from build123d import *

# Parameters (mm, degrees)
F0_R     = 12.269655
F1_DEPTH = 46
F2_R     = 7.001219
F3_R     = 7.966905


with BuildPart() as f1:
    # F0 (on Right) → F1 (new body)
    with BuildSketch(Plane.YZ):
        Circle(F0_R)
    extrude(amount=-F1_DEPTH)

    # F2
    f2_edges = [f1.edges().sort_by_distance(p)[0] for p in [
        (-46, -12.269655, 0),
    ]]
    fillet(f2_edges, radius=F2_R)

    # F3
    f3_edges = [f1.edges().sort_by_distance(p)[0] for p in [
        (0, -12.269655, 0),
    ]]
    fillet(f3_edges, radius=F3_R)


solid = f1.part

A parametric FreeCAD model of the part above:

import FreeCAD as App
import Part
import Sketcher
from FreeCAD import Vector


def edges_at(feature, points):
    """Names of the edges that pass closest to the given points."""
    edges = feature.Shape.Edges
    near = lambda p: min(range(len(edges)), key=lambda i: edges[i].distToShape(Part.Vertex(*p))[0])
    return sorted({f"Edge{near(p) + 1}" for p in points})

doc = App.newDocument("Part")
body = doc.addObject("PartDesign::Body", "Body")

# Sketch on YZ plane
sketch1 = doc.addObject("Sketcher::SketchObject", "Sketch")
body.addObject(sketch1)
sketch1.AttachmentSupport = (doc.YZ_Plane, [""])
sketch1.MapMode = "FlatFace"
sketch1.addGeometry(Part.Circle(Vector(0, 0, 0), Vector(0, 0, 1), 12), False)
sketch1.addConstraint(Sketcher.Constraint("Coincident", 0, 3, -1, 1))
sketch1.addConstraint(Sketcher.Constraint("Diameter", 0, 24.53931))
pad1 = doc.addObject("PartDesign::Pad", "Pad")
body.addObject(pad1)
pad1.Profile = sketch1
pad1.Length = 46
pad1.Reversed = True
doc.recompute()

fillet = doc.addObject("PartDesign::Fillet", "Fillet")
body.addObject(fillet)
fillet.Base = (pad1, edges_at(pad1, [(-46, -12.27, 0)]))
fillet.Radius = 7.001219
doc.recompute()

fillet2 = doc.addObject("PartDesign::Fillet", "Fillet001")
body.addObject(fillet2)
fillet2.Base = (fillet, edges_at(fillet, [(0, -12.27, 0)]))
fillet2.Radius = 7.966905

doc.recompute()
